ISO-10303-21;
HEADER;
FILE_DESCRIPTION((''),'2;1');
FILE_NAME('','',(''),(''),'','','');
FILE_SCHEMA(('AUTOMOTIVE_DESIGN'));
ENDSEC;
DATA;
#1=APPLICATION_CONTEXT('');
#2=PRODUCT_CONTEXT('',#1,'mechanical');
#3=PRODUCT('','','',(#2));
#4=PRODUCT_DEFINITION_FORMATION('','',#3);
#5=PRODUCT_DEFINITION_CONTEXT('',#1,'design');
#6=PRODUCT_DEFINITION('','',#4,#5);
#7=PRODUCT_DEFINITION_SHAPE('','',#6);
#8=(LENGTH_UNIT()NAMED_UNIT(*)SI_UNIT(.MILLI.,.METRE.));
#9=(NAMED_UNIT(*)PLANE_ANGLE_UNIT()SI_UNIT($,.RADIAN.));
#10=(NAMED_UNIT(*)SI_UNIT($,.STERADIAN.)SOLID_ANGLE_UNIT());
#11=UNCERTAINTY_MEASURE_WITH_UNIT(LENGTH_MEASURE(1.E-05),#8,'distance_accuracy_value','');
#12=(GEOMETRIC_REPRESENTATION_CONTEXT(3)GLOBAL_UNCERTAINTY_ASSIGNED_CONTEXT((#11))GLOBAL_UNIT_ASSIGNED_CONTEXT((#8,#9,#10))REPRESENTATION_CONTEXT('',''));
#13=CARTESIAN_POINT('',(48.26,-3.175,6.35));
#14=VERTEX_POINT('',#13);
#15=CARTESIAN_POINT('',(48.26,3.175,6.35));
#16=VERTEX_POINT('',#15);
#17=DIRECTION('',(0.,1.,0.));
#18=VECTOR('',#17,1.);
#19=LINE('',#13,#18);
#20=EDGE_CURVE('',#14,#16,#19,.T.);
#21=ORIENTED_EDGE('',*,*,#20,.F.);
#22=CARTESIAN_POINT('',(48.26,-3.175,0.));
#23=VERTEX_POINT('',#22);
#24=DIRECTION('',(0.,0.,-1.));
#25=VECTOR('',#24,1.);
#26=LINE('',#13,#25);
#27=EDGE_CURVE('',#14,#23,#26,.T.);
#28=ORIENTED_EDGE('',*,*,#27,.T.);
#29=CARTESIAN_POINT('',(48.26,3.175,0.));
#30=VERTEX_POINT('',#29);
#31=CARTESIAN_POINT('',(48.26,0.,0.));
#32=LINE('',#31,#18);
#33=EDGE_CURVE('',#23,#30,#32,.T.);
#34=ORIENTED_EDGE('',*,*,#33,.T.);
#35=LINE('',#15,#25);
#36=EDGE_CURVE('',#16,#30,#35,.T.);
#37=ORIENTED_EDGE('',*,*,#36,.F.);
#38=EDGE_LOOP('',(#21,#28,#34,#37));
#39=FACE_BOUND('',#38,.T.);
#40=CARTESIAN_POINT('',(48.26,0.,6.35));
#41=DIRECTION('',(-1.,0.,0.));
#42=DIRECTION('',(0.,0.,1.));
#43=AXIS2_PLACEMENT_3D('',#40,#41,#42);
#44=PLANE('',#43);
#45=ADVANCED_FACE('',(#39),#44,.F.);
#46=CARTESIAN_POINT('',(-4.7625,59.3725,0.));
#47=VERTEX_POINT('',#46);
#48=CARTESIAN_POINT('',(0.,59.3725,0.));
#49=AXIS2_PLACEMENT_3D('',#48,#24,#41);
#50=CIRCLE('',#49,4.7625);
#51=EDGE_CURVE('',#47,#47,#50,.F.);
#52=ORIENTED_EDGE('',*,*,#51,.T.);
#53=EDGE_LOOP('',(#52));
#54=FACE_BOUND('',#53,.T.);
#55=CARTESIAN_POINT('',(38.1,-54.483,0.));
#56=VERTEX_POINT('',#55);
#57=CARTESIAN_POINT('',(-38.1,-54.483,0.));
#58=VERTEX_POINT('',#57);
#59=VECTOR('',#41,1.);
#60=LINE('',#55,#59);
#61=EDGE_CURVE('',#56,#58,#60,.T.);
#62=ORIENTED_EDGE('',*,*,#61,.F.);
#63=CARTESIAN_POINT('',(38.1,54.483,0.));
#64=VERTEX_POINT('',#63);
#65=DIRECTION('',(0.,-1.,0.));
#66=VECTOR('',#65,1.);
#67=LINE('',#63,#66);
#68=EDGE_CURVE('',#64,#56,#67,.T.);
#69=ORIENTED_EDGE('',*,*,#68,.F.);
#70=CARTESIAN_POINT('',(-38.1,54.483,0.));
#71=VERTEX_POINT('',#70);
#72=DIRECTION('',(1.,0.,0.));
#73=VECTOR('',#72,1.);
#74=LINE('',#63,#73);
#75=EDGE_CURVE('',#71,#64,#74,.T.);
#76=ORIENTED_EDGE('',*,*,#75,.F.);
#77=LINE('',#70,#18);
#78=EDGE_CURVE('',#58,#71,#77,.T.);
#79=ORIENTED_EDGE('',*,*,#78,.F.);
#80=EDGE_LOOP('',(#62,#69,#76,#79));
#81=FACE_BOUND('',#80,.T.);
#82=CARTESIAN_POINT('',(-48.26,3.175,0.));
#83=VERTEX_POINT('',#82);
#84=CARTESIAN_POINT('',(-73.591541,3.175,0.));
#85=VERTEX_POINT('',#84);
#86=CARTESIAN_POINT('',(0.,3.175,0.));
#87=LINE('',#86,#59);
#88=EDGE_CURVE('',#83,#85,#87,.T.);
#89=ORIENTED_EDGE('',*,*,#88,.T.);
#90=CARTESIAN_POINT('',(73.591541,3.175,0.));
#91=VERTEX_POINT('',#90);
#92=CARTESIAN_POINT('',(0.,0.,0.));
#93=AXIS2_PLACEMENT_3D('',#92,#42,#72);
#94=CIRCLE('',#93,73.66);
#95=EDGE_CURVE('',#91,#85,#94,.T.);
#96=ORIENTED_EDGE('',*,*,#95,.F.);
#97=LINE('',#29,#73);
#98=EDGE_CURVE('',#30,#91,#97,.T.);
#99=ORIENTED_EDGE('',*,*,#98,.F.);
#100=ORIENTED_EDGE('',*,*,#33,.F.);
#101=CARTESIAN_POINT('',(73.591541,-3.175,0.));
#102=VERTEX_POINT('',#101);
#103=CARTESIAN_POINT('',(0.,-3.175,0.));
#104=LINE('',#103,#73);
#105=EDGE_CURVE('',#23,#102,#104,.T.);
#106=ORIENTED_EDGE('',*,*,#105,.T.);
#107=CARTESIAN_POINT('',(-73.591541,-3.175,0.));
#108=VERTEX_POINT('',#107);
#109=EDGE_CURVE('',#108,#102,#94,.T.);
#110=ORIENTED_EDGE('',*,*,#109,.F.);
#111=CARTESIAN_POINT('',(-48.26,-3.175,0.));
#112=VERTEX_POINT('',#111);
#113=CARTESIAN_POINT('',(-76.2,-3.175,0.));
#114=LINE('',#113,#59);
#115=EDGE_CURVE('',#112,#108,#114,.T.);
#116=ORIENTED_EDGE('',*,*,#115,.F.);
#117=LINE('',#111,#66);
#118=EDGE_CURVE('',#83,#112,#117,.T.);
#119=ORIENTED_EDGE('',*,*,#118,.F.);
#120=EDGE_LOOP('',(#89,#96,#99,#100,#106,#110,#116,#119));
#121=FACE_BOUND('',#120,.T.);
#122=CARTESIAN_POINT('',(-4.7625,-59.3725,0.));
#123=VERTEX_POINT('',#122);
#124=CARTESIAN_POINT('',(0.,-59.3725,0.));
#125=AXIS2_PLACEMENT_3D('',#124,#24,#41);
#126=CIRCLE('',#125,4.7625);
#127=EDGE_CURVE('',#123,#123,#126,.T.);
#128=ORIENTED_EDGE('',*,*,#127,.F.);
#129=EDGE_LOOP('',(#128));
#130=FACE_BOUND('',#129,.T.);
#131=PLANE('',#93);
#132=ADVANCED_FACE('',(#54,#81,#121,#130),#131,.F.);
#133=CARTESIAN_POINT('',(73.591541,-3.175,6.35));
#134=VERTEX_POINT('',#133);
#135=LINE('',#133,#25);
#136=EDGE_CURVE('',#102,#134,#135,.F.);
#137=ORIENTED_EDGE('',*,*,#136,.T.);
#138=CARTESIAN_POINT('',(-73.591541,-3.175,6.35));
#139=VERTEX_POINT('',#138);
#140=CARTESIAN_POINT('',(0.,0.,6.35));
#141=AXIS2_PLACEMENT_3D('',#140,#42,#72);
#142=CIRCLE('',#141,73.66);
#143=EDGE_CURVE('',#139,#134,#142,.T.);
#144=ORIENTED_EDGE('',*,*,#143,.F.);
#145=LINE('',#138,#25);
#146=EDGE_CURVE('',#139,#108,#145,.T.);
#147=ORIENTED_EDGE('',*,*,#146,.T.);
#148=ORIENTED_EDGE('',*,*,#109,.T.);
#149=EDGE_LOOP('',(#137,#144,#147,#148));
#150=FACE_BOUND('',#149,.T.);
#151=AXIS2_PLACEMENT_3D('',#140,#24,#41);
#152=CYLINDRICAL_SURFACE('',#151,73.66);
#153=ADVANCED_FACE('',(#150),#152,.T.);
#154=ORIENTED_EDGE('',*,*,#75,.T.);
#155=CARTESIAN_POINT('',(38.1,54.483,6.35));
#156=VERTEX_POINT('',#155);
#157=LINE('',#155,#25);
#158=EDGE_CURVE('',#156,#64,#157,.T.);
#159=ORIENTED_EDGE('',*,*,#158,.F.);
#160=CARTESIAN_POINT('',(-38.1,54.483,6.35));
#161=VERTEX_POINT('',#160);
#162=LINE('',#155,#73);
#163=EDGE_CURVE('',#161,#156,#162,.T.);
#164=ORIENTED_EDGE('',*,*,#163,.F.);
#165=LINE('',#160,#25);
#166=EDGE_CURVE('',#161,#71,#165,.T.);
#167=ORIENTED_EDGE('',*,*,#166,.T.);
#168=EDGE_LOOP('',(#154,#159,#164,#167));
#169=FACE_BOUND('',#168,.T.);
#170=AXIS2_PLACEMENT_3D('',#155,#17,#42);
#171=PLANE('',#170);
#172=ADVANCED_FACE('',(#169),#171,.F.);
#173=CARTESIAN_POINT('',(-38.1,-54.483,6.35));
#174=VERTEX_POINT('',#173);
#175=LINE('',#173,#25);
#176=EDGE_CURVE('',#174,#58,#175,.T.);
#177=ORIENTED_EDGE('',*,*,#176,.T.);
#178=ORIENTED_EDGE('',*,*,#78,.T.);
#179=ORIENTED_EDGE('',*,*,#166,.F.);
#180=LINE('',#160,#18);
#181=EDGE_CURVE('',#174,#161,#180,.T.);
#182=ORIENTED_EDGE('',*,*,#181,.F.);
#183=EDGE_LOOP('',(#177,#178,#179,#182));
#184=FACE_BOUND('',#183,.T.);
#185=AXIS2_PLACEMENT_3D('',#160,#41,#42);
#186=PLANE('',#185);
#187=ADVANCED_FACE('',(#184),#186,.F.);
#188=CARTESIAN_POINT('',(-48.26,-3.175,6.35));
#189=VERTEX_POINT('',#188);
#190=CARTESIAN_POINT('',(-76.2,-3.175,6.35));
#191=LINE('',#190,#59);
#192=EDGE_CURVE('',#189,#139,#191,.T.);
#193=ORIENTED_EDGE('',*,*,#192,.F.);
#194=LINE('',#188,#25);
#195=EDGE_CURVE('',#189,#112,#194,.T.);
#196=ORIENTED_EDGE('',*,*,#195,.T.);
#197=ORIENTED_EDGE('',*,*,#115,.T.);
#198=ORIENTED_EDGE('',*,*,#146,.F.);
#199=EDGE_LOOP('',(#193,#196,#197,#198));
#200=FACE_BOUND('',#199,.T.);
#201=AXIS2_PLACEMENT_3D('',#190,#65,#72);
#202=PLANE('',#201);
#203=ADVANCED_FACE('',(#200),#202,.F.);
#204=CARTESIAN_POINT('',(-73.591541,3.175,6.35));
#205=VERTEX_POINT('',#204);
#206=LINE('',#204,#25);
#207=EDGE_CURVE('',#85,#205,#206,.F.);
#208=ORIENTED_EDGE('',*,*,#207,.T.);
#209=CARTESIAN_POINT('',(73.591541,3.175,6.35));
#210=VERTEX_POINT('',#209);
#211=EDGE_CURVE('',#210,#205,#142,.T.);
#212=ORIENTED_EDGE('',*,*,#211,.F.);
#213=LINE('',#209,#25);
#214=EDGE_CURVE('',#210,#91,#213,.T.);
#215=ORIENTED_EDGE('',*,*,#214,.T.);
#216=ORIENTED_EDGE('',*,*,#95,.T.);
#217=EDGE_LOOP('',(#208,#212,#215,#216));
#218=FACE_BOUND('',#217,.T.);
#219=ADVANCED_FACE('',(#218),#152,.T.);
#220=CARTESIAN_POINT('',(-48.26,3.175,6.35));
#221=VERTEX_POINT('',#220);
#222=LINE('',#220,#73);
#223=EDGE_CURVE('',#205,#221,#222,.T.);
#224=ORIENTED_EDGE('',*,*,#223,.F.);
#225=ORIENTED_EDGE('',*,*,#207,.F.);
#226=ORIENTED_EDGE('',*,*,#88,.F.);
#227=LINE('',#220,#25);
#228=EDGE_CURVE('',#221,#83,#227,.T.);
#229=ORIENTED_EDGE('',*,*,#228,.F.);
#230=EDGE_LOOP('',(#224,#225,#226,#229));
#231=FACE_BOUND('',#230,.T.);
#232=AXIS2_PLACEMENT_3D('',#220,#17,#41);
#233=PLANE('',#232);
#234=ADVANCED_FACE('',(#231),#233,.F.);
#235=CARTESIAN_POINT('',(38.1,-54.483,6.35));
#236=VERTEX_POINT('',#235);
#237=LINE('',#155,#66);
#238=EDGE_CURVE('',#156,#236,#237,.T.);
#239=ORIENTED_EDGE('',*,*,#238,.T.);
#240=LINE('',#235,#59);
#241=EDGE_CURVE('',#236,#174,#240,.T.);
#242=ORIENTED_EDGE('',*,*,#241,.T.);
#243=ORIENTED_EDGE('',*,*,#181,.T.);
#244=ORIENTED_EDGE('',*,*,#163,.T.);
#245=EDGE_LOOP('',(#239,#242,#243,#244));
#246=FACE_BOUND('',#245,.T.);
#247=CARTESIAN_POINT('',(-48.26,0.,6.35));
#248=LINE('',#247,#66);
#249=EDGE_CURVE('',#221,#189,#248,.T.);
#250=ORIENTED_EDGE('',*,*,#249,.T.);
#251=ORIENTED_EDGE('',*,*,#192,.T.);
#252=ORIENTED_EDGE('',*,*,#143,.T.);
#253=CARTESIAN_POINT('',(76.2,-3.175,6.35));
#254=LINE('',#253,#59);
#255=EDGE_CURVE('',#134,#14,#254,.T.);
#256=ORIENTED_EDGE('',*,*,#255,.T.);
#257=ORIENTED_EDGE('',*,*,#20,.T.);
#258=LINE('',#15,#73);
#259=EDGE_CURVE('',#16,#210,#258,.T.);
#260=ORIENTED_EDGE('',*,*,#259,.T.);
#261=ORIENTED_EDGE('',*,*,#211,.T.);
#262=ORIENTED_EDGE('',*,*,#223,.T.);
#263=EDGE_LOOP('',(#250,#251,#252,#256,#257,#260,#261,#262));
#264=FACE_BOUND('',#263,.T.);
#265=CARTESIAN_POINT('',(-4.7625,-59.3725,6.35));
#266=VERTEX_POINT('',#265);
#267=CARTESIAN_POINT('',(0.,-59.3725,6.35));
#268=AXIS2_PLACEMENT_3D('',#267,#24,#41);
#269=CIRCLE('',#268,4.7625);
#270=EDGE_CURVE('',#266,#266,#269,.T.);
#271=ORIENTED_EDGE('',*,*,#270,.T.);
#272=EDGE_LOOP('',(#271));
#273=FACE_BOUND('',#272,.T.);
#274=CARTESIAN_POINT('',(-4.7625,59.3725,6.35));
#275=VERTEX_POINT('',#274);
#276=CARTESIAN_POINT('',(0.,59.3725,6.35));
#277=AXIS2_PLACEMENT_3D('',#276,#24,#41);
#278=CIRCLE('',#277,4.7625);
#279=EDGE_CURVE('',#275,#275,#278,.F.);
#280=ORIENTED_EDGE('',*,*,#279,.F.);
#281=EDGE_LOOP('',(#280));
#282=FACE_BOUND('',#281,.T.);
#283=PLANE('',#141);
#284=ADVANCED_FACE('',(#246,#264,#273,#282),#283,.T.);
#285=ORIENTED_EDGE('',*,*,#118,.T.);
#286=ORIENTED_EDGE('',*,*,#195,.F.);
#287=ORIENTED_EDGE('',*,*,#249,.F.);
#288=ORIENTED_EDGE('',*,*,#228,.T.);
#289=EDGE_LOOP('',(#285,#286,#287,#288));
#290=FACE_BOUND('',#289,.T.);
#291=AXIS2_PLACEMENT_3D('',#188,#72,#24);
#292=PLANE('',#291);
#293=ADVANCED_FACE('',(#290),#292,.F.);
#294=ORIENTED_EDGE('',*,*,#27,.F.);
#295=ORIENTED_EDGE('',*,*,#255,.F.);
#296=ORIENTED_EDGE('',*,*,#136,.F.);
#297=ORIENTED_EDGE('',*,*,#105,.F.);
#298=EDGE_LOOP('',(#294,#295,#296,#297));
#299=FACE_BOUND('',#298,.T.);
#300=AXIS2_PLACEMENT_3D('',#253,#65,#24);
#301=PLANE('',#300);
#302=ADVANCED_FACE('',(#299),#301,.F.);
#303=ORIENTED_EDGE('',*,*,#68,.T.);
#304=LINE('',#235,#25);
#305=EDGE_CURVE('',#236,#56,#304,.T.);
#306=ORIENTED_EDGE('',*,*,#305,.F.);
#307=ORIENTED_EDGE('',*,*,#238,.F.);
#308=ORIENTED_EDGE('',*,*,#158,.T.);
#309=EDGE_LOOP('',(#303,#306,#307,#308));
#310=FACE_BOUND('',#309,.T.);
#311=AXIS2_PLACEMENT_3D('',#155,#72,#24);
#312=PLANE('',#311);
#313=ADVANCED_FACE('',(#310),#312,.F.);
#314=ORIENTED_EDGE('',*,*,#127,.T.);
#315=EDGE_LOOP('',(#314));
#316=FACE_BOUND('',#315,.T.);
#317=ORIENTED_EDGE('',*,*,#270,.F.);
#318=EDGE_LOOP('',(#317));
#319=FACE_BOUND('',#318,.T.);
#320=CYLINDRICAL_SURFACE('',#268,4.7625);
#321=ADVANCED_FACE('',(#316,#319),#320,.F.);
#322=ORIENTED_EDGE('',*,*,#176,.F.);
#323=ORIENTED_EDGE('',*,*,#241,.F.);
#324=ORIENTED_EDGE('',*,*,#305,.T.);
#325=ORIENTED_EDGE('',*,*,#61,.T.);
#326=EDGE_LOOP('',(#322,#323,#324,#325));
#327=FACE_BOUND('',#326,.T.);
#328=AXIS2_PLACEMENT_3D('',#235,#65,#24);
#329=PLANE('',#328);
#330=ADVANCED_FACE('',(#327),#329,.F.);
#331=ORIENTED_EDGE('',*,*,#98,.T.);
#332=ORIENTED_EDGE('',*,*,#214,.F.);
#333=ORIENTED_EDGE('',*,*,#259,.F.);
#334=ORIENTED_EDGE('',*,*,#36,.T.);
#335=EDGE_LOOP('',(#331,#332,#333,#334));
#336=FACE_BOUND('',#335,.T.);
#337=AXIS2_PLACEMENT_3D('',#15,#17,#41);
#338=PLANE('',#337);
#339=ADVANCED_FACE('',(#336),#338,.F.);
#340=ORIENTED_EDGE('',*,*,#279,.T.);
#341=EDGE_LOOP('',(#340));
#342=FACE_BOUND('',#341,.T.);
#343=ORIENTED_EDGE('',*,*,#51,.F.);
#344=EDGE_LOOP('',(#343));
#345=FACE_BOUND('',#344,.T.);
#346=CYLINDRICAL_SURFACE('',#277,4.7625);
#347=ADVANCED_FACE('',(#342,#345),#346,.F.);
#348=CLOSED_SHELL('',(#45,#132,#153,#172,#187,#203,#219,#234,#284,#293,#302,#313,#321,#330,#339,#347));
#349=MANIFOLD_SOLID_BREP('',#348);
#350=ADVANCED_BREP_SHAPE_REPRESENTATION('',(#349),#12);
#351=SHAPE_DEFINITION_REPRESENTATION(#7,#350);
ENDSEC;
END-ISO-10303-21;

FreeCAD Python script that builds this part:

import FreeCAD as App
import Part
import Sketcher
Q = App.Units.Quantity


def add_polygon(sketch, points):
    """Adds a closed chain of lines whose ends are joined by coincident constraints."""
    first, n = sketch.GeometryCount, len(points)
    for a, b in zip(points, points[1:] + points[:1]):
        sketch.addGeometry(Part.LineSegment(App.Vector(*a, 0), App.Vector(*b, 0)), False)
    for i in range(n):
        sketch.addConstraint(Sketcher.Constraint("Coincident", first + i, 2, first + (i + 1) % n, 1))

doc = App.newDocument("Part")
body = doc.addObject("PartDesign::Body", "Body")

# Sketch on XY plane
sketch1 = body.newObject("Sketcher::SketchObject", "Sketch")
sketch1.AttachmentSupport = (doc.getObject("XY_Plane"), [""])
sketch1.MapMode = "FlatFace"
sketch1.addGeometry(Part.Circle(App.Vector(0, 0, 0), App.Vector(0, 0, 1), 73.66), False)
sketch1.addConstraint(Sketcher.Constraint("Coincident", 0, 3, -1, 1))
sketch1.addConstraint(Sketcher.Constraint("Diameter", 0, Q("5.8 in")))
pad1 = body.newObject("PartDesign::Pad", "Pad")
pad1.Profile = sketch1
pad1.Length = Q("0.25 in")

# Sketch on XY plane
sketch2 = body.newObject("Sketcher::SketchObject", "Sketch001")
sketch2.AttachmentSupport = (doc.getObject("XY_Plane"), [""])
sketch2.MapMode = "FlatFace"
add_polygon(sketch2, [(48.26, 3.175), (76.2, 3.175), (76.2, -3.175), (48.26, -3.175)])  # lines 0-3
add_polygon(sketch2, [(-48.26, 3.175), (-48.26, -3.175), (-76.2, -3.175), (-76.2, 3.175)])  # lines 4-7
sketch2.addConstraint(Sketcher.Constraint("Horizontal", 0))
sketch2.addConstraint(Sketcher.Constraint("Vertical", 1))
sketch2.addConstraint(Sketcher.Constraint("Horizontal", 2))
sketch2.addConstraint(Sketcher.Constraint("Vertical", 3))
sketch2.addConstraint(Sketcher.Constraint("Vertical", 4))
sketch2.addConstraint(Sketcher.Constraint("Horizontal", 5))
sketch2.addConstraint(Sketcher.Constraint("Vertical", 6))
sketch2.addConstraint(Sketcher.Constraint("Horizontal", 7))
sketch2.addConstraint(Sketcher.Constraint("Symmetric", 3, 2, 4, 2, -1, 1))
sketch2.addConstraint(Sketcher.Constraint("Symmetric", 1, 2, 6, 2, -1, 1))
sketch2.addConstraint(Sketcher.Constraint("Horizontal", 2, 2, 4, 2))
sketch2.addConstraint(Sketcher.Constraint("DistanceX", 0, 1, 0, 2, Q("1.1 in")))
sketch2.addConstraint(Sketcher.Constraint("DistanceX", -1, 1, 0, 2, Q("3 in")))
sketch2.addConstraint(Sketcher.Constraint("DistanceY", 1, 2, 1, 1, Q("0.25 in")))
pocket1 = body.newObject("PartDesign::Pocket", "Pocket")
pocket1.Profile = sketch2
pocket1.Type = "ThroughAll"
pocket1.Reversed = True

# Sketch on XY plane
sketch3 = body.newObject("Sketcher::SketchObject", "Sketch002")
sketch3.AttachmentSupport = (doc.getObject("XY_Plane"), [""])
sketch3.MapMode = "FlatFace"
sketch3.addGeometry(Part.Circle(App.Vector(0, -59.3725, 0), App.Vector(0, 0, 1), 4.7625), False)
sketch3.addGeometry(Part.Circle(App.Vector(0, 59.3725, 0), App.Vector(0, 0, 1), 4.7625), False)
sketch3.addConstraint(Sketcher.Constraint("Equal", 0, 1))
sketch3.addConstraint(Sketcher.Constraint("Symmetric", 0, 3, 1, 3, -1, 1))
sketch3.addConstraint(Sketcher.Constraint("PointOnObject", 0, 3, -2))
sketch3.addConstraint(Sketcher.Constraint("Diameter", 0, Q("0.375 in")))
sketch3.addConstraint(Sketcher.Constraint("DistanceY", 0, 3, 1, 3, Q("4.675 in")))
pocket2 = body.newObject("PartDesign::Pocket", "Pocket001")
pocket2.Profile = sketch3
pocket2.Type = "ThroughAll"
pocket2.Reversed = True

# Sketch on XY plane
sketch4 = body.newObject("Sketcher::SketchObject", "Sketch003")
sketch4.AttachmentSupport = (doc.getObject("XY_Plane"), [""])
sketch4.MapMode = "FlatFace"
add_polygon(sketch4, [(38.1, 54.483), (38.1, -54.483), (-38.1, -54.483), (-38.1, 54.483)])  # lines 0-3
sketch4.addConstraint(Sketcher.Constraint("Vertical", 0))
sketch4.addConstraint(Sketcher.Constraint("Horizontal", 1))
sketch4.addConstraint(Sketcher.Constraint("Vertical", 2))
sketch4.addConstraint(Sketcher.Constraint("Horizontal", 3))
sketch4.addConstraint(Sketcher.Constraint("Symmetric", 0, 2, 2, 2, -1, 1))
sketch4.addConstraint(Sketcher.Constraint("DistanceX", 1, 2, 1, 1, Q("3 in")))
sketch4.addConstraint(Sketcher.Constraint("DistanceY", 0, 2, 0, 1, Q("4.29 in")))
pocket3 = body.newObject("PartDesign::Pocket", "Pocket002")
pocket3.Profile = sketch4
pocket3.Type = "ThroughAll"
pocket3.Reversed = True

doc.recompute()
